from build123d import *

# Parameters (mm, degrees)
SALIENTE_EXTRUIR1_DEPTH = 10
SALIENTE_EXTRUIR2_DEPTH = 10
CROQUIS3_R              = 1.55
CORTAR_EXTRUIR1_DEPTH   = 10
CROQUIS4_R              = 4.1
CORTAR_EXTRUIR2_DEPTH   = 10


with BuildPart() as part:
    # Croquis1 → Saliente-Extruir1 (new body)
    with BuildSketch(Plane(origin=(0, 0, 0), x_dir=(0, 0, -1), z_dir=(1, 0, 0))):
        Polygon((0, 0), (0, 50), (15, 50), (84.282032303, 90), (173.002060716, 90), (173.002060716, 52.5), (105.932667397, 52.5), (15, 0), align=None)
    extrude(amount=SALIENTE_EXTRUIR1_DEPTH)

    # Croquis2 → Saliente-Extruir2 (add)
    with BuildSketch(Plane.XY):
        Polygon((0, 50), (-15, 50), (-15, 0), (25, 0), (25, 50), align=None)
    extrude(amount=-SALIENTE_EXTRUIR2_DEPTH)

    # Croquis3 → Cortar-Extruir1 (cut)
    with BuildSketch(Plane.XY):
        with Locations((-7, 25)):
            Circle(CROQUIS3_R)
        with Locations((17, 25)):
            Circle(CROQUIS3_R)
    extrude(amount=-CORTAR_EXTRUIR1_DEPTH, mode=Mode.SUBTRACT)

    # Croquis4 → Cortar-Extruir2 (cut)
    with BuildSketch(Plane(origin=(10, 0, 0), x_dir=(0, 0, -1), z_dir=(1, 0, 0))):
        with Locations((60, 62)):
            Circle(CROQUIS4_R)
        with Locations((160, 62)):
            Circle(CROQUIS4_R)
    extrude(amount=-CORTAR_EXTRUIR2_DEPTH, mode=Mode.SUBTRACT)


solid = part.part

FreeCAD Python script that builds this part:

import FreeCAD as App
import Part
import Sketcher
from FreeCAD import Vector
Q = App.Units.Quantity

doc = App.newDocument("Part")
params = doc.addObject("Spreadsheet::Sheet", "Params")
for row, (alias, value) in enumerate([
    ("sketch1_width", "50 mm"),
    ("sketch1_height", "15 mm"),
    ("sketch1_length", "105 mm"),
    ("sketch1_length2", "80 mm"),
    ("pad1_length", "10 mm"),
    ("sketch2_width", "40 mm"),
    ("sketch2_height", "50 mm"),
    ("pad2_length", "10 mm"),
    ("sketch3_diameter", "3.1 mm"),
    ("pocket1_length", "10 mm"),
    ("sketch4_diameter", "8.2 mm"),
    ("pocket2_length", "10 mm"),
], start=1):
    params.set(f"A{row}", alias)
    params.set(f"B{row}", "=" + value)
    params.setAlias(f"B{row}", alias)

body = doc.addObject("PartDesign::Body", "Body")

sketch1 = body.newObject("Sketcher::SketchObject", "Sketch")
sketch1.AttachmentSupport = (doc.getObject("YZ_Plane"), [""])
sketch1.MapMode = "FlatFace"
sketch1.addGeometry(Part.LineSegment(Vector(50, 0, 0), Vector(0, 0, 0)), False)
sketch1.addGeometry(Part.LineSegment(Vector(0, 0, 0), Vector(0, -15, 0)), False)
sketch1.addGeometry(Part.LineSegment(Vector(0, -15, 0), Vector(52.5, -105.932667, 0)), False)
sketch1.addGeometry(Part.LineSegment(Vector(52.5, -105.932667, 0), Vector(52.5, -173.002061, 0)), False)
sketch1.addGeometry(Part.LineSegment(Vector(52.5, -173.002061, 0), Vector(90, -173.002061, 0)), False)
sketch1.addGeometry(Part.LineSegment(Vector(90, -173.002061, 0), Vector(90, -84.282032, 0)), False)
sketch1.addGeometry(Part.LineSegment(Vector(90, -84.282032, 0), Vector(50, -15, 0)), False)
sketch1.addGeometry(Part.LineSegment(Vector(50, -15, 0), Vector(50, 0, 0)), False)
sketch1.addConstraint(Sketcher.Constraint("Coincident", 0, 2, 1, 1))
sketch1.addConstraint(Sketcher.Constraint("Coincident", 1, 2, 2, 1))
sketch1.addConstraint(Sketcher.Constraint("Coincident", 2, 2, 3, 1))
sketch1.addConstraint(Sketcher.Constraint("Coincident", 3, 2, 4, 1))
sketch1.addConstraint(Sketcher.Constraint("Coincident", 4, 2, 5, 1))
sketch1.addConstraint(Sketcher.Constraint("Coincident", 5, 2, 6, 1))
sketch1.addConstraint(Sketcher.Constraint("Coincident", 6, 2, 7, 1))
sketch1.addConstraint(Sketcher.Constraint("Coincident", 7, 2, 0, 1))
sketch1.addConstraint(Sketcher.Constraint("Horizontal", 0))
sketch1.addConstraint(Sketcher.Constraint("Vertical", 1))
sketch1.addConstraint(Sketcher.Constraint("Vertical", 3))
sketch1.addConstraint(Sketcher.Constraint("Horizontal", 4))
sketch1.addConstraint(Sketcher.Constraint("Vertical", 5))
sketch1.addConstraint(Sketcher.Constraint("Vertical", 7))
sketch1.addConstraint(Sketcher.Constraint("Coincident", 0, 2, -1, 1))
sketch1.addConstraint(Sketcher.Constraint("Parallel", 2, 6))
sketch1.addConstraint(Sketcher.Constraint("Horizontal", 1, 2, 6, 2))
sketch1.addConstraint(Sketcher.Constraint("DistanceX", 0, 2, 0, 1, 50.0))
sketch1.addConstraint(Sketcher.Constraint("DistanceY", 1, 2, 1, 1, 15.0))
sketch1.addConstraint(Sketcher.Constraint("Angle", 2, Q("-60 deg")))
sketch1.addConstraint(Sketcher.Constraint("Distance", 2, 105.0))
sketch1.addConstraint(Sketcher.Constraint("Distance", 6, 80.0))
sketch1.addConstraint(Sketcher.Constraint("DistanceY", 5, 1, 5, 2, 88.720028))
sketch1.setExpression("Constraints[17]", "Params.sketch1_width")
sketch1.setExpression("Constraints[18]", "Params.sketch1_height")
sketch1.setExpression("Constraints[20]", "Params.sketch1_length")
sketch1.setExpression("Constraints[21]", "Params.sketch1_length2")
pad1 = body.newObject("PartDesign::Pad", "Pad")
pad1.Profile = sketch1
pad1.setExpression("Length", "Params.pad1_length")

sketch2 = body.newObject("Sketcher::SketchObject", "Sketch001")
sketch2.AttachmentSupport = (doc.getObject("XY_Plane"), [""])
sketch2.MapMode = "FlatFace"
sketch2.addGeometry(Part.LineSegment(Vector(-15, 50, 0), Vector(-15, 0, 0)), False)
sketch2.addGeometry(Part.LineSegment(Vector(-15, 0, 0), Vector(25, 0, 0)), False)
sketch2.addGeometry(Part.LineSegment(Vector(25, 0, 0), Vector(25, 50, 0)), False)
sketch2.addGeometry(Part.LineSegment(Vector(25, 50, 0), Vector(-15, 50, 0)), False)
sketch2.addConstraint(Sketcher.Constraint("Coincident", 0, 2, 1, 1))
sketch2.addConstraint(Sketcher.Constraint("Coincident", 1, 2, 2, 1))
sketch2.addConstraint(Sketcher.Constraint("Coincident", 2, 2, 3, 1))
sketch2.addConstraint(Sketcher.Constraint("Coincident", 3, 2, 0, 1))
sketch2.addConstraint(Sketcher.Constraint("Vertical", 0))
sketch2.addConstraint(Sketcher.Constraint("Horizontal", 1))
sketch2.addConstraint(Sketcher.Constraint("Vertical", 2))
sketch2.addConstraint(Sketcher.Constraint("Horizontal", 3))
sketch2.addConstraint(Sketcher.Constraint("PointOnObject", 0, 2, -1))
sketch2.addConstraint(Sketcher.Constraint("DistanceX", 1, 1, 1, 2, 40.0))
sketch2.addConstraint(Sketcher.Constraint("DistanceY", 0, 2, 0, 1, 50.0))
sketch2.addConstraint(Sketcher.Constraint("DistanceX", 0, 2, -1, 1, 15.0))
sketch2.setExpression("Constraints[9]", "Params.sketch2_width")
sketch2.setExpression("Constraints[10]", "Params.sketch2_height")
pad2 = body.newObject("PartDesign::Pad", "Pad001")
pad2.Profile = sketch2
pad2.setExpression("Length", "Params.pad2_length")
pad2.Reversed = True

sketch3 = body.newObject("Sketcher::SketchObject", "Sketch002")
sketch3.AttachmentSupport = (doc.getObject("XY_Plane"), [""])
sketch3.MapMode = "FlatFace"
sketch3.addGeometry(Part.Circle(Vector(-7, 25, 0), Vector(0, 0, 1), 1.55), False)
sketch3.addGeometry(Part.Circle(Vector(17, 25, 0), Vector(0, 0, 1), 1.55), False)
sketch3.addConstraint(Sketcher.Constraint("Equal", 0, 1))
sketch3.addConstraint(Sketcher.Constraint("Horizontal", 0, 3, 1, 3))
sketch3.addConstraint(Sketcher.Constraint("Diameter", 0, 3.1))
sketch3.addConstraint(Sketcher.Constraint("DistanceX", 0, 3, -1, 1, 7.0))
sketch3.addConstraint(Sketcher.Constraint("DistanceY", -1, 1, 0, 3, 25.0))
sketch3.addConstraint(Sketcher.Constraint("DistanceX", -1, 1, 1, 3, 17.0))
sketch3.setExpression("Constraints[2]", "Params.sketch3_diameter")
pocket1 = body.newObject("PartDesign::Pocket", "Pocket")
pocket1.Profile = sketch3
pocket1.setExpression("Length", "Params.pocket1_length")

sketch4 = body.newObject("Sketcher::SketchObject", "Sketch003")
sketch4.AttachmentSupport = (doc.getObject("YZ_Plane"), [""])
sketch4.MapMode = "FlatFace"
sketch4.AttachmentOffset = App.Placement(Vector(0, 0, 10), App.Rotation())
sketch4.addGeometry(Part.Circle(Vector(62, -60, 0), Vector(0, 0, 1), 4.1), False)
sketch4.addGeometry(Part.Circle(Vector(62, -160, 0), Vector(0, 0, 1), 4.1), False)
sketch4.addConstraint(Sketcher.Constraint("Equal", 0, 1))
sketch4.addConstraint(Sketcher.Constraint("Vertical", 0, 3, 1, 3))
sketch4.addConstraint(Sketcher.Constraint("Diameter", 0, 8.2))
sketch4.addConstraint(Sketcher.Constraint("DistanceX", -1, 1, 0, 3, 62.0))
sketch4.addConstraint(Sketcher.Constraint("DistanceY", 0, 3, -1, 1, 60.0))
sketch4.addConstraint(Sketcher.Constraint("DistanceY", 1, 3, -1, 1, 160.0))
sketch4.setExpression("Constraints[2]", "Params.sketch4_diameter")
pocket2 = body.newObject("PartDesign::Pocket", "Pocket001")
pocket2.Profile = sketch4
pocket2.setExpression("Length", "Params.pocket2_length")

doc.recompute()
